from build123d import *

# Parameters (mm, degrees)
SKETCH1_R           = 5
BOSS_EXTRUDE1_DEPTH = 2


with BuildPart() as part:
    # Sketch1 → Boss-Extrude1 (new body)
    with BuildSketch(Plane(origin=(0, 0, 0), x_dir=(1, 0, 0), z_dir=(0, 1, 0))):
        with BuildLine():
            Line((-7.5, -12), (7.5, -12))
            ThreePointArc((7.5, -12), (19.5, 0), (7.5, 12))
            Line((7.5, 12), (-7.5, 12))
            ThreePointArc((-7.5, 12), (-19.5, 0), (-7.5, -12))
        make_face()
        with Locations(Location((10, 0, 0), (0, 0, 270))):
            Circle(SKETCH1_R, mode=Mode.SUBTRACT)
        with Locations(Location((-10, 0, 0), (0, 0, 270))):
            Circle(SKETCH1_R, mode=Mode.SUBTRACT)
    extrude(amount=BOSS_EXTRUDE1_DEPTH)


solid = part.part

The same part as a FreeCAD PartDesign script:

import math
import FreeCAD as App
import Part
import Sketcher
Q = App.Units.Quantity

doc = App.newDocument("Part")
body = doc.addObject("PartDesign::Body", "Body")

# Sketch on XZ plane
sketch1 = body.newObject("Sketcher::SketchObject", "Sketch")
sketch1.AttachmentSupport = (doc.getObject("XZ_Plane"), [""])
sketch1.MapMode = "FlatFace"
sketch1.addGeometry(Part.LineSegment(App.Vector(-7.5, 12, 0), App.Vector(7.5, 12, 0)), False)
sketch1.addGeometry(Part.ArcOfCircle(Part.Circle(App.Vector(7.5, 0, 0), App.Vector(0, 0, 1), 12), math.radians(-90), math.radians(90)), False)
sketch1.addGeometry(Part.LineSegment(App.Vector(7.5, -12, 0), App.Vector(-7.5, -12, 0)), False)
sketch1.addGeometry(Part.ArcOfCircle(Part.Circle(App.Vector(-7.5, 0, 0), App.Vector(0, 0, 1), 12), math.radians(90), math.radians(270)), False)
sketch1.addGeometry(Part.Circle(App.Vector(-10, 0, 0), App.Vector(0, 0, 1), 5), False)
sketch1.addGeometry(Part.Circle(App.Vector(10, 0, 0), App.Vector(0, 0, 1), 5), False)
sketch1.addConstraint(Sketcher.Constraint("Tangent", 0, 2, 1, 2))
sketch1.addConstraint(Sketcher.Constraint("Tangent", 1, 1, 2, 1))
sketch1.addConstraint(Sketcher.Constraint("Tangent", 2, 2, 3, 2))
sketch1.addConstraint(Sketcher.Constraint("Tangent", 3, 1, 0, 1))
sketch1.addConstraint(Sketcher.Constraint("Horizontal", 0))
sketch1.addConstraint(Sketcher.Constraint("Horizontal", 2))
sketch1.addConstraint(Sketcher.Constraint("Equal", 4, 5))
sketch1.addConstraint(Sketcher.Constraint("Symmetric", 1, 3, 3, 3, -1, 1))
sketch1.addConstraint(Sketcher.Constraint("Symmetric", 4, 3, 5, 3, -1, 1))
sketch1.addConstraint(Sketcher.Constraint("PointOnObject", 4, 3, -1))
sketch1.addConstraint(Sketcher.Constraint("Diameter", 4, Q("10 mm")))
sketch1.addConstraint(Sketcher.Constraint("Radius", 1, Q("12 mm")))
sketch1.addConstraint(Sketcher.Constraint("DistanceX", 0, 1, 0, 2, Q("15 mm")))
sketch1.addConstraint(Sketcher.Constraint("DistanceX", 4, 3, -1, 1, Q("10 mm")))
pad1 = body.newObject("PartDesign::Pad", "Pad")
pad1.Profile = sketch1
pad1.Length = 2
pad1.Reversed = True

doc.recompute()
